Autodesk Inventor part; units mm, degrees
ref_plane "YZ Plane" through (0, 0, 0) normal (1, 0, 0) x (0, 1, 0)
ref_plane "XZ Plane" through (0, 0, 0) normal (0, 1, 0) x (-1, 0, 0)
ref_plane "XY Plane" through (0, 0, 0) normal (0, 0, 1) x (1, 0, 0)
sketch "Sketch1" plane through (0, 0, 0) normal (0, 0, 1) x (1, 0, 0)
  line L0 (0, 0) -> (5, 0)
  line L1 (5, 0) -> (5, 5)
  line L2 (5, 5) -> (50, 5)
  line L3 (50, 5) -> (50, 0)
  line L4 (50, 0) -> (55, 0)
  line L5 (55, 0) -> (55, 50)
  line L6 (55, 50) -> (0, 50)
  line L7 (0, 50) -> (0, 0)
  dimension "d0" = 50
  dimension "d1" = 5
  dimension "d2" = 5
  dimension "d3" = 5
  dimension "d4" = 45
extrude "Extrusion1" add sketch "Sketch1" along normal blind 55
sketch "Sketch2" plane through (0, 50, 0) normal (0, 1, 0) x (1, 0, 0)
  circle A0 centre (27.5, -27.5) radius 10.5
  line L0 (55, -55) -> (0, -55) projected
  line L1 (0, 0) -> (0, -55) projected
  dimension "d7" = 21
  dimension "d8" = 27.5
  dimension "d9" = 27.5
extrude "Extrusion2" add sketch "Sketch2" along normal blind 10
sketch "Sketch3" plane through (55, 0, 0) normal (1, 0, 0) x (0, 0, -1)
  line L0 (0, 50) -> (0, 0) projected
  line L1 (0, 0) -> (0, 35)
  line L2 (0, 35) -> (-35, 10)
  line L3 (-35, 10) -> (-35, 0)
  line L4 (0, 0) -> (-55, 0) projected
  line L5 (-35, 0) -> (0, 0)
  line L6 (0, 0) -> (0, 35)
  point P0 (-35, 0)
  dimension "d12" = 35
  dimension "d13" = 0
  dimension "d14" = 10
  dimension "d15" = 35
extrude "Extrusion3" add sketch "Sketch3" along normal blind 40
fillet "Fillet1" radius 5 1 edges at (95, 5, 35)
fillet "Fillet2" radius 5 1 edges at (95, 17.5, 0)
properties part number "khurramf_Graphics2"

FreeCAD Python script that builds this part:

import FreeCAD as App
import Part
import Sketcher
Q = App.Units.Quantity


def edges_at(feature, points):
    """Names of the edges that pass closest to the given points."""
    edges = feature.Shape.Edges
    near = lambda p: min(range(len(edges)), key=lambda i: edges[i].distToShape(Part.Vertex(*p))[0])
    return sorted({f"Edge{near(p) + 1}" for p in points})

doc = App.newDocument("Part")
body = doc.addObject("PartDesign::Body", "Body")

# Sketch on XY plane
sketch1 = body.newObject("Sketcher::SketchObject", "Sketch")
sketch1.AttachmentSupport = (doc.getObject("XY_Plane"), [""])
sketch1.MapMode = "FlatFace"
sketch1.addGeometry([
    Part.LineSegment(App.Vector(0, 50, 0), App.Vector(0, 0, 0)),  # 0
    Part.LineSegment(App.Vector(0, 0, 0), App.Vector(5, 0, 0)),  # 1
    Part.LineSegment(App.Vector(5, 0, 0), App.Vector(5, 5, 0)),  # 2
    Part.LineSegment(App.Vector(5, 5, 0), App.Vector(50, 5, 0)),  # 3
    Part.LineSegment(App.Vector(50, 5, 0), App.Vector(50, 0, 0)),  # 4
    Part.LineSegment(App.Vector(50, 0, 0), App.Vector(55, 0, 0)),  # 5
    Part.LineSegment(App.Vector(55, 0, 0), App.Vector(55, 50, 0)),  # 6
    Part.LineSegment(App.Vector(55, 50, 0), App.Vector(0, 50, 0)),  # 7
], False)
sketch1.addConstraint([
    Sketcher.Constraint("Coincident", 0, 2, 1, 1),
    Sketcher.Constraint("Coincident", 1, 2, 2, 1),
    Sketcher.Constraint("Coincident", 2, 2, 3, 1),
    Sketcher.Constraint("Coincident", 3, 2, 4, 1),
    Sketcher.Constraint("Coincident", 4, 2, 5, 1),
    Sketcher.Constraint("Coincident", 5, 2, 6, 1),
    Sketcher.Constraint("Coincident", 6, 2, 7, 1),
    Sketcher.Constraint("Coincident", 7, 2, 0, 1),
    Sketcher.Constraint("Vertical", 0),
    Sketcher.Constraint("Horizontal", 1),
    Sketcher.Constraint("Vertical", 2),
    Sketcher.Constraint("Horizontal", 3),
    Sketcher.Constraint("Vertical", 4),
    Sketcher.Constraint("Horizontal", 5),
    Sketcher.Constraint("Vertical", 6),
    Sketcher.Constraint("Horizontal", 7),
    Sketcher.Constraint("Coincident", 0, 2, -1, 1),
    Sketcher.Constraint("PointOnObject", 4, 2, -1),
    Sketcher.Constraint("Equal", 1, 5),
    Sketcher.Constraint("Equal", 5, 2),
    Sketcher.Constraint("DistanceX", 1, 1, 1, 2, Q("5 mm")),
    Sketcher.Constraint("DistanceX", 3, 1, 3, 2, Q("45 mm")),
    Sketcher.Constraint("DistanceY", 0, 2, 0, 1, Q("50 mm")),
])
pad1 = body.newObject("PartDesign::Pad", "Pad")
pad1.Profile = sketch1
pad1.Length = 55

# Sketch on XZ plane
sketch2 = body.newObject("Sketcher::SketchObject", "Sketch001")
sketch2.AttachmentSupport = (doc.getObject("XZ_Plane"), [""])
sketch2.MapMode = "FlatFace"
sketch2.AttachmentOffset = App.Placement(App.Vector(0, 0, -50), App.Rotation())
sketch2.addGeometry(Part.Circle(App.Vector(28, 28, 0), App.Vector(0, 0, 1), 10), False)
sketch2.addConstraint([
    Sketcher.Constraint("Diameter", 0, Q("21 mm")),
    Sketcher.Constraint("DistanceX", -1, 1, 0, 3, Q("27.5 mm")),
    Sketcher.Constraint("DistanceY", -1, 1, 0, 3, Q("27.5 mm")),
])
pad2 = body.newObject("PartDesign::Pad", "Pad001")
pad2.Profile = sketch2
pad2.Length = 10
pad2.Reversed = True

# Sketch on YZ plane
sketch3 = body.newObject("Sketcher::SketchObject", "Sketch002")
sketch3.AttachmentSupport = (doc.getObject("YZ_Plane"), [""])
sketch3.MapMode = "FlatFace"
sketch3.AttachmentOffset = App.Placement(App.Vector(0, 0, 55), App.Rotation())
sketch3.addGeometry([
    Part.LineSegment(App.Vector(0, 0, 0), App.Vector(35, 0, 0)),
    Part.LineSegment(App.Vector(35, 0, 0), App.Vector(10, 35, 0)),
    Part.LineSegment(App.Vector(10, 35, 0), App.Vector(0, 35, 0)),
    Part.LineSegment(App.Vector(0, 35, 0), App.Vector(0, 0, 0)),
], False)
sketch3.addConstraint([
    Sketcher.Constraint("Coincident", 0, 2, 1, 1),
    Sketcher.Constraint("Coincident", 1, 2, 2, 1),
    Sketcher.Constraint("Coincident", 2, 2, 3, 1),
    Sketcher.Constraint("Coincident", 3, 2, 0, 1),
    Sketcher.Constraint("Horizontal", 0),
    Sketcher.Constraint("Horizontal", 2),
    Sketcher.Constraint("Vertical", 3),
    Sketcher.Constraint("Coincident", 3, 2, -1, 1),
    Sketcher.Constraint("Equal", 0, 3),
    Sketcher.Constraint("DistanceX", 0, 1, 0, 2, Q("35 mm")),
    Sketcher.Constraint("DistanceX", 2, 2, 2, 1, Q("10 mm")),
])
pad3 = body.newObject("PartDesign::Pad", "Pad002")
pad3.Profile = sketch3
pad3.Length = 40
doc.recompute()

fillet = body.newObject("PartDesign::Fillet", "Fillet")
fillet.Base = (pad3, edges_at(pad3, [(95, 5, 35)]))
fillet.Radius = 5
doc.recompute()

fillet2 = body.newObject("PartDesign::Fillet", "Fillet001")
fillet2.Base = (fillet, edges_at(fillet, [(95, 17.5, 0)]))
fillet2.Radius = 5

doc.recompute()
